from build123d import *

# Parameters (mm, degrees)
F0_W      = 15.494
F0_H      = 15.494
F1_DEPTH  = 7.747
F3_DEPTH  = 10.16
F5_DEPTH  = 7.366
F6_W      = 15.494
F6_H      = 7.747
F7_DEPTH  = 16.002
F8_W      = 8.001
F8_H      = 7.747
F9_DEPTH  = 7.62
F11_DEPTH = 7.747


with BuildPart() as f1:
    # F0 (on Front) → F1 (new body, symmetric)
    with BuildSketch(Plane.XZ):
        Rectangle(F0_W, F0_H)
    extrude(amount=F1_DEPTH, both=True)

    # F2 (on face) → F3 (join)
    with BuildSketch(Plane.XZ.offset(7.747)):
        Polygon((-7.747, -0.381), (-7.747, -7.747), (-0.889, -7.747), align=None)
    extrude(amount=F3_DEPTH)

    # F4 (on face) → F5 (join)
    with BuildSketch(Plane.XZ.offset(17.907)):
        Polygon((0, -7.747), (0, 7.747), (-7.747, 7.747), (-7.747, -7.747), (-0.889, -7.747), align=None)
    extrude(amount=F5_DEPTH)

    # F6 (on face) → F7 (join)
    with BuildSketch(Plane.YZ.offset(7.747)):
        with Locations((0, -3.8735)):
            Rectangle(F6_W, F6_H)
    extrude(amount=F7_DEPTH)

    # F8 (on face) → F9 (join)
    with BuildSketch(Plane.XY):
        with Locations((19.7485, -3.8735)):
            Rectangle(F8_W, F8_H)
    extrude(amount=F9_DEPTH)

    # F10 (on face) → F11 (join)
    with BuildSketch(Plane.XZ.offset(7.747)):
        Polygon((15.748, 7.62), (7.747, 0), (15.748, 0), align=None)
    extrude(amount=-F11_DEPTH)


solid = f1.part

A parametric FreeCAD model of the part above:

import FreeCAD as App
import Part
import Sketcher
Q = App.Units.Quantity


def add_polygon(sketch, points):
    """Adds a closed chain of lines whose ends are joined by coincident constraints."""
    first, n = sketch.GeometryCount, len(points)
    for a, b in zip(points, points[1:] + points[:1]):
        sketch.addGeometry(Part.LineSegment(App.Vector(*a, 0), App.Vector(*b, 0)), False)
    for i in range(n):
        sketch.addConstraint(Sketcher.Constraint("Coincident", first + i, 2, first + (i + 1) % n, 1))

doc = App.newDocument("Part")
body = doc.addObject("PartDesign::Body", "Body")

sketch1 = body.newObject("Sketcher::SketchObject", "Sketch")
sketch1.AttachmentSupport = (doc.getObject("XZ_Plane"), [""])
sketch1.MapMode = "FlatFace"
add_polygon(sketch1, [(-7.747, 7.747), (-7.747, -7.747), (7.747, -7.747), (7.747, 7.747)])
sketch1.addConstraint([
    Sketcher.Constraint("Vertical", 0),
    Sketcher.Constraint("Horizontal", 1),
    Sketcher.Constraint("Vertical", 2),
    Sketcher.Constraint("Horizontal", 3),
    Sketcher.Constraint("Symmetric", 0, 2, 2, 2, -1, 1),
    Sketcher.Constraint("Equal", 3, 0),
    Sketcher.Constraint("DistanceX", 1, 1, 1, 2, Q("0.61 in")),
])
pad1 = body.newObject("PartDesign::Pad", "Pad")
pad1.Profile = sketch1
pad1.Length = Q("0.61 in")
pad1.Midplane = True

sketch2 = body.newObject("Sketcher::SketchObject", "Sketch001")
sketch2.AttachmentSupport = (doc.getObject("XZ_Plane"), [""])
sketch2.MapMode = "FlatFace"
sketch2.AttachmentOffset = App.Placement(App.Vector(0, 0, 0.305 * 25.4), App.Rotation())
add_polygon(sketch2, [(-7.747, -0.381), (-7.747, -7.747), (-0.889, -7.747)])
sketch2.addConstraint([
    Sketcher.Constraint("Vertical", 0),
    Sketcher.Constraint("Horizontal", 1),
    Sketcher.Constraint("DistanceX", 1, 1, 1, 2, Q("0.27 in")),
    Sketcher.Constraint("DistanceY", 0, 2, 0, 1, Q("0.29 in")),
    Sketcher.Constraint("DistanceX", 0, 2, -1, 1, Q("0.305 in")),
    Sketcher.Constraint("DistanceY", 0, 2, -1, 1, Q("0.305 in")),
])
pad2 = body.newObject("PartDesign::Pad", "Pad001")
pad2.Profile = sketch2
pad2.Length = Q("0.4 in")

sketch3 = body.newObject("Sketcher::SketchObject", "Sketch002")
sketch3.AttachmentSupport = (doc.getObject("XZ_Plane"), [""])
sketch3.MapMode = "FlatFace"
sketch3.AttachmentOffset = App.Placement(App.Vector(0, 0, 0.705 * 25.4), App.Rotation())
add_polygon(sketch3, [(0, -7.747), (0, 7.747), (-7.747, 7.747), (-7.747, -7.747)])
sketch3.addConstraint([
    Sketcher.Constraint("Vertical", 0),
    Sketcher.Constraint("Horizontal", 1),
    Sketcher.Constraint("Vertical", 2),
    Sketcher.Constraint("Horizontal", 3),
    Sketcher.Constraint("Symmetric", 0, 2, 3, 2, -1, 1),
    Sketcher.Constraint("DistanceY", 0, 1, 0, 2, Q("0.61 in")),
    Sketcher.Constraint("DistanceX", 1, 2, 1, 1, Q("0.305 in")),
])
pad3 = body.newObject("PartDesign::Pad", "Pad002")
pad3.Profile = sketch3
pad3.Length = Q("0.29 in")

sketch4 = body.newObject("Sketcher::SketchObject", "Sketch003")
sketch4.AttachmentSupport = (doc.getObject("YZ_Plane"), [""])
sketch4.MapMode = "FlatFace"
sketch4.AttachmentOffset = App.Placement(App.Vector(0, 0, 0.305 * 25.4), App.Rotation())
add_polygon(sketch4, [(-7.747, 0), (-7.747, -7.747), (7.747, -7.747), (7.747, 0)])
sketch4.addConstraint([
    Sketcher.Constraint("Vertical", 0),
    Sketcher.Constraint("Horizontal", 1),
    Sketcher.Constraint("Vertical", 2),
    Sketcher.Constraint("Horizontal", 3),
    Sketcher.Constraint("Symmetric", 2, 2, 3, 2, -1, 1),
    Sketcher.Constraint("DistanceX", 1, 1, 1, 2, Q("0.61 in")),
    Sketcher.Constraint("DistanceY", 0, 2, 0, 1, Q("0.305 in")),
])
pad4 = body.newObject("PartDesign::Pad", "Pad003")
pad4.Profile = sketch4
pad4.Length = Q("0.63 in")

sketch5 = body.newObject("Sketcher::SketchObject", "Sketch004")
sketch5.AttachmentSupport = (doc.getObject("XY_Plane"), [""])
sketch5.MapMode = "FlatFace"
add_polygon(sketch5, [(15.748, 0), (15.748, -7.747), (23.749, -7.747), (23.749, 0)])
sketch5.addConstraint([
    Sketcher.Constraint("Vertical", 0),
    Sketcher.Constraint("Horizontal", 1),
    Sketcher.Constraint("Vertical", 2),
    Sketcher.Constraint("Horizontal", 3),
    Sketcher.Constraint("PointOnObject", 2, 2, -1),
    Sketcher.Constraint("DistanceX", 1, 1, 1, 2, Q("0.315 in")),
    Sketcher.Constraint("DistanceY", 0, 2, 0, 1, Q("0.305 in")),
    Sketcher.Constraint("DistanceX", -1, 1, 0, 2, Q("0.62 in")),
])
pad5 = body.newObject("PartDesign::Pad", "Pad004")
pad5.Profile = sketch5
pad5.Length = Q("0.3 in")

sketch6 = body.newObject("Sketcher::SketchObject", "Sketch005")
sketch6.AttachmentSupport = (doc.getObject("XZ_Plane"), [""])
sketch6.MapMode = "FlatFace"
sketch6.AttachmentOffset = App.Placement(App.Vector(0, 0, 0.305 * 25.4), App.Rotation())
add_polygon(sketch6, [(15.748, 7.62), (7.747, 0), (15.748, 0)])
sketch6.addConstraint([
    Sketcher.Constraint("Horizontal", 1),
    Sketcher.Constraint("Vertical", 2),
    Sketcher.Constraint("PointOnObject", 0, 2, -1),
    Sketcher.Constraint("DistanceY", 2, 1, 2, 2, Q("0.3 in")),
    Sketcher.Constraint("DistanceX", 1, 1, 1, 2, Q("0.315 in")),
    Sketcher.Constraint("DistanceX", -1, 1, 1, 2, Q("0.62 in")),
])
pad6 = body.newObject("PartDesign::Pad", "Pad005")
pad6.Profile = sketch6
pad6.Length = Q("0.305 in")
pad6.Reversed = True

doc.recompute()
